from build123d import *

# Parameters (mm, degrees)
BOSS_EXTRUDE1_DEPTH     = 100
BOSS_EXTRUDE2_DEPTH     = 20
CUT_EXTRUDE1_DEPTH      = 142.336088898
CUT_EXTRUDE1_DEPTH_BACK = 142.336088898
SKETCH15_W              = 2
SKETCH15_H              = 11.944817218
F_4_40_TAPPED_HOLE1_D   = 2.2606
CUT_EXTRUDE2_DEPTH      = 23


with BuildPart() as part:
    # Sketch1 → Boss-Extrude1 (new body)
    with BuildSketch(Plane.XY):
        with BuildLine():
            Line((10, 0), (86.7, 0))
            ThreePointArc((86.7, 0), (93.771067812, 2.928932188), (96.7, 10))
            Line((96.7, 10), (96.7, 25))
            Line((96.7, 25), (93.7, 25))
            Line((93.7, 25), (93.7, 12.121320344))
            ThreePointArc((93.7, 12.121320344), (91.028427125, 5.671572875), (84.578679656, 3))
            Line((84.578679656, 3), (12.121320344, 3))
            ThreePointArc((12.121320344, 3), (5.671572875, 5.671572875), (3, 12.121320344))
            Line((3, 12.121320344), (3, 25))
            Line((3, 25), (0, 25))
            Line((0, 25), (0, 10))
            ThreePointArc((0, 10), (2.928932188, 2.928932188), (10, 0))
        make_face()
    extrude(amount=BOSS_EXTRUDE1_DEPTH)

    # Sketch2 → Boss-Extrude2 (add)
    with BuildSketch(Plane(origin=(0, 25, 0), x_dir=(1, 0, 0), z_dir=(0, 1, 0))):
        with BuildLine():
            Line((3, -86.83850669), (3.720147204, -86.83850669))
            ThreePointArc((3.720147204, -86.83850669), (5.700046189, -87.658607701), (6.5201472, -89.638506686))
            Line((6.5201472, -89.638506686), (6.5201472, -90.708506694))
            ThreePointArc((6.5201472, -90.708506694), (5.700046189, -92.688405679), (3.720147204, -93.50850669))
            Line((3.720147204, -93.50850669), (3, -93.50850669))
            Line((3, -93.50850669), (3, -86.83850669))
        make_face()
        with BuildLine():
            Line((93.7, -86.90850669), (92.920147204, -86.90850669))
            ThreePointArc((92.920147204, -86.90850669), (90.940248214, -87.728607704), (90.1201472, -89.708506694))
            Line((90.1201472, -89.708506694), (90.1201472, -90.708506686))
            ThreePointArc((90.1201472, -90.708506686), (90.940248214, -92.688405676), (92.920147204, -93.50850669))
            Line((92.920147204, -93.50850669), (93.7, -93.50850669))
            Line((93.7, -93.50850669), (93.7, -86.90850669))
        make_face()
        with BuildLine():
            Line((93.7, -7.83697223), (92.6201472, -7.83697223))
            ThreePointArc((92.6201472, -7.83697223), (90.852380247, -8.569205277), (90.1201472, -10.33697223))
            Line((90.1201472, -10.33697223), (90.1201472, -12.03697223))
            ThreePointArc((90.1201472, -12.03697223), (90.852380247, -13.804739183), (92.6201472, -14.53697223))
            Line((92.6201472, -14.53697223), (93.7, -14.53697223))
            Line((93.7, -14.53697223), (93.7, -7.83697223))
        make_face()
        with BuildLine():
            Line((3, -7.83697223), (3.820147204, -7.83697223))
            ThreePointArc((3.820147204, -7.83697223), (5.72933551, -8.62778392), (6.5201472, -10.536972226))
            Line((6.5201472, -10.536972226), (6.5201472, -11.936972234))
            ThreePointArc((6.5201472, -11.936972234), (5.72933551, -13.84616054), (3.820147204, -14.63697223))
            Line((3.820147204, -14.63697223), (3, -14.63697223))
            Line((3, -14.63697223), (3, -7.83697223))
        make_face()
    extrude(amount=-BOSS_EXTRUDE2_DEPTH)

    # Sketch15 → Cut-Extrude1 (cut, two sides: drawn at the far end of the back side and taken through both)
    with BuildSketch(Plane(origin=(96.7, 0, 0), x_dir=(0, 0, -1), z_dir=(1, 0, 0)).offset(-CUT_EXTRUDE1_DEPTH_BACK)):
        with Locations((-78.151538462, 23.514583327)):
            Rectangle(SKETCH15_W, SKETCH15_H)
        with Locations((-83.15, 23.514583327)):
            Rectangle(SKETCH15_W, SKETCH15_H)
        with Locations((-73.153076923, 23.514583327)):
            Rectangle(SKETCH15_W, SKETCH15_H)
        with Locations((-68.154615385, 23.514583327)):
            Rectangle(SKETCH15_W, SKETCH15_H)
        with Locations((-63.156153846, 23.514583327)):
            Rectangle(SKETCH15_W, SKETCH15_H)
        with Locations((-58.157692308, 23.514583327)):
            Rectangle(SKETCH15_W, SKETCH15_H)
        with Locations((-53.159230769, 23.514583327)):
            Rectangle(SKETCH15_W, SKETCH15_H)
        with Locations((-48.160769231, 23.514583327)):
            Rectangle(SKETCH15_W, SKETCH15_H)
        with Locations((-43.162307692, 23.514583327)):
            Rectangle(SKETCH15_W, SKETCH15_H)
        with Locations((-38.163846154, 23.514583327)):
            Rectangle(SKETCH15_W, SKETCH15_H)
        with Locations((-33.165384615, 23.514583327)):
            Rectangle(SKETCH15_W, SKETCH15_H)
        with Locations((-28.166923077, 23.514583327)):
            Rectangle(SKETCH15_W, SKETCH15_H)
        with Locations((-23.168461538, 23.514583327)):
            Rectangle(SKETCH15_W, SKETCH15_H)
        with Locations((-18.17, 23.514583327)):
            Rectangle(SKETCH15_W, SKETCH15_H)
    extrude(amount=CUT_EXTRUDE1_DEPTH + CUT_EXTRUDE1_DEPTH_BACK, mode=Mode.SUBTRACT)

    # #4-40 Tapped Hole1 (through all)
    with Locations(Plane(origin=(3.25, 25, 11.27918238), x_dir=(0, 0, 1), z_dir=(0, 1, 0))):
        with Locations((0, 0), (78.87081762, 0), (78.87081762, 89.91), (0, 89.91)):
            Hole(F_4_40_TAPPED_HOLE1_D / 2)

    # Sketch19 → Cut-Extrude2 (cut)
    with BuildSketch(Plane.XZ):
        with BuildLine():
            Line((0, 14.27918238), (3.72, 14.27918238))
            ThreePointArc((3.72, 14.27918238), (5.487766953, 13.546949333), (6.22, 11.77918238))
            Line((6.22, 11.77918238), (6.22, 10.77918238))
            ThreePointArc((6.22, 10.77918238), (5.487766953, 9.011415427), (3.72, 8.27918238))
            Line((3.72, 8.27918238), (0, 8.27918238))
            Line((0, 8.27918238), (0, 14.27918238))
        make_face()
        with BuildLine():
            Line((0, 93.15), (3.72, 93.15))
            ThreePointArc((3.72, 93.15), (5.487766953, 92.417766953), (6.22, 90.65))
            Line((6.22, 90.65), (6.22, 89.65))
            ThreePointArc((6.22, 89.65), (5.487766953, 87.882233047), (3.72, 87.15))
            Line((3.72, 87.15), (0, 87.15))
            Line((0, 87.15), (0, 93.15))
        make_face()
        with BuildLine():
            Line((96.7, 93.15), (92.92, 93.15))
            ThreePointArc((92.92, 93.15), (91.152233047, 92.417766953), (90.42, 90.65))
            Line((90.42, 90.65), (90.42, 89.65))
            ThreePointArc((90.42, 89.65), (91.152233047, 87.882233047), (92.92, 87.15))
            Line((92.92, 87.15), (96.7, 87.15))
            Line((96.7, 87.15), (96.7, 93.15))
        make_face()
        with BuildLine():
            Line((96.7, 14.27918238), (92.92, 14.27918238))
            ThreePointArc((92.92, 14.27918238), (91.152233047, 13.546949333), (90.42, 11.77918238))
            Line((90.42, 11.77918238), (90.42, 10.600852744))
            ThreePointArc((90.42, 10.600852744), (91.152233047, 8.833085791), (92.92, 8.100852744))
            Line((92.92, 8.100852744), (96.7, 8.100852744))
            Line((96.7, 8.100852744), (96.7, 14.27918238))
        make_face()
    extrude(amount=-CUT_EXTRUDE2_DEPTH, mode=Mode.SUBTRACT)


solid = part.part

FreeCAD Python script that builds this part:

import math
import FreeCAD as App
import Part
import Sketcher
from FreeCAD import Vector
Q = App.Units.Quantity


def add_polygon(sketch, points):
    """Adds a closed chain of lines whose ends are joined by coincident constraints."""
    first, n = sketch.GeometryCount, len(points)
    for a, b in zip(points, points[1:] + points[:1]):
        sketch.addGeometry(Part.LineSegment(App.Vector(*a, 0), App.Vector(*b, 0)), False)
    for i in range(n):
        sketch.addConstraint(Sketcher.Constraint("Coincident", first + i, 2, first + (i + 1) % n, 1))

doc = App.newDocument("Part")
params = doc.addObject("Spreadsheet::Sheet", "Params")
for row, (alias, value) in enumerate([
    ("sketch1_radius", "10 mm"),
    ("sketch1_width", "3 mm"),
    ("sketch1_height", "15 mm"),
    ("sketch1_width2", "76.7 mm"),
    ("pad1_length", "100 mm"),
    ("sketch2_radius", "2.8 mm"),
    ("sketch2_radius2", "2.5 mm"),
    ("sketch2_radius3", "2.7 mm"),
    ("sketch2_height", "1 mm"),
    ("sketch2_height2", "1.7 mm"),
    ("pad2_length", "20 mm"),
    ("sketch3_height", "2 mm"),
    ("hole_diameter", "2.2606 mm"),
    ("sketch5_radius", "2.5 mm"),
    ("sketch5_height", "6 mm"),
    ("sketch5_width", "3.72 mm"),
    ("sketch5_width2", "3.78 mm"),
    ("pocket2_length", "23 mm"),
], start=1):
    params.set(f"A{row}", alias)
    params.set(f"B{row}", "=" + value)
    params.setAlias(f"B{row}", alias)

body = doc.addObject("PartDesign::Body", "Body")

# Sketch on XY plane
sketch1 = doc.addObject("Sketcher::SketchObject", "Sketch")
body.addObject(sketch1)
sketch1.AttachmentSupport = (doc.XY_Plane, [""])
sketch1.MapMode = "FlatFace"
sketch1.addGeometry([
    Part.LineSegment(Vector(10, 0, 0), Vector(86.7, 0, 0)),  # 0
    Part.ArcOfCircle(Part.Circle(Vector(86.7, 10, 0), Vector(0, 0, 1), 10), math.radians(-90), math.radians(0)),  # 1
    Part.LineSegment(Vector(96.7, 10, 0), Vector(96.7, 25, 0)),  # 2
    Part.LineSegment(Vector(96.7, 25, 0), Vector(93.7, 25, 0)),  # 3
    Part.LineSegment(Vector(93.7, 25, 0), Vector(93.7, 12.1, 0)),  # 4
    Part.ArcOfCircle(Part.Circle(Vector(84.6, 12.1, 0), Vector(0, 0, 1), 9.1), math.radians(-90), math.radians(0)),  # 5
    Part.LineSegment(Vector(84.6, 3, 0), Vector(12.1, 3, 0)),  # 6
    Part.ArcOfCircle(Part.Circle(Vector(12.1, 12.1, 0), Vector(0, 0, 1), 9.1), math.radians(180), math.radians(270)),  # 7
    Part.LineSegment(Vector(3, 12.1, 0), Vector(3, 25, 0)),  # 8
    Part.LineSegment(Vector(3, 25, 0), Vector(0, 25, 0)),  # 9
    Part.LineSegment(Vector(0, 25, 0), Vector(0, 10, 0)),  # 10
    Part.ArcOfCircle(Part.Circle(Vector(10, 10, 0), Vector(0, 0, 1), 10), math.radians(180), math.radians(270)),  # 11
], False)
sketch1.addConstraint([
    Sketcher.Constraint("Tangent", 0, 2, 1, 1),
    Sketcher.Constraint("Tangent", 1, 2, 2, 1),
    Sketcher.Constraint("Coincident", 2, 2, 3, 1),
    Sketcher.Constraint("Coincident", 3, 2, 4, 1),
    Sketcher.Constraint("Tangent", 4, 2, 5, 2),
    Sketcher.Constraint("Tangent", 5, 1, 6, 1),
    Sketcher.Constraint("Tangent", 6, 2, 7, 2),
    Sketcher.Constraint("Tangent", 7, 1, 8, 1),
    Sketcher.Constraint("Coincident", 8, 2, 9, 1),
    Sketcher.Constraint("Coincident", 9, 2, 10, 1),
    Sketcher.Constraint("Tangent", 10, 2, 11, 1),
    Sketcher.Constraint("Tangent", 11, 2, 0, 1),
    Sketcher.Constraint("Horizontal", 0),
    Sketcher.Constraint("Vertical", 2),
    Sketcher.Constraint("Horizontal", 3),
    Sketcher.Constraint("Vertical", 4),
    Sketcher.Constraint("Horizontal", 6),
    Sketcher.Constraint("Vertical", 8),
    Sketcher.Constraint("Horizontal", 9),
    Sketcher.Constraint("Vertical", 10),
    Sketcher.Constraint("Equal", 5, 7),
    Sketcher.Constraint("Equal", 1, 11),
    Sketcher.Constraint("PointOnObject", 0, 2, -1),
    Sketcher.Constraint("PointOnObject", 9, 2, -2),
    Sketcher.Constraint("Horizontal", 3, 2, 8, 2),
    Sketcher.Constraint("Equal", 3, 9),
    Sketcher.Constraint("Radius", 1, Q("10 mm")),
    Sketcher.Constraint("DistanceX", 3, 2, 3, 1, Q("3 mm")),
    Sketcher.Constraint("DistanceY", 2, 1, 2, 2, Q("15 mm")),
    Sketcher.Constraint("DistanceX", 0, 1, 0, 2, Q("76.7 mm")),
    Sketcher.Constraint("DistanceY", -1, 1, 5, 1, Q("3 mm")),
    Sketcher.Constraint("Radius", 5, Q("9.12132 mm")),
])
sketch1.setExpression("Constraints[26]", "Params.sketch1_radius")
sketch1.setExpression("Constraints[27]", "Params.sketch1_width")
sketch1.setExpression("Constraints[28]", "Params.sketch1_height")
sketch1.setExpression("Constraints[29]", "Params.sketch1_width2")
pad1 = doc.addObject("PartDesign::Pad", "Pad")
body.addObject(pad1)
pad1.Profile = sketch1
pad1.setExpression("Length", "Params.pad1_length")

# Sketch on XZ plane
sketch2 = doc.addObject("Sketcher::SketchObject", "Sketch001")
body.addObject(sketch2)
sketch2.AttachmentSupport = (doc.XZ_Plane, [""])
sketch2.MapMode = "FlatFace"
sketch2.AttachmentOffset = App.Placement(Vector(0, 0, -25), App.Rotation())
sketch2.addGeometry([
    Part.LineSegment(Vector(3.7, 86.8, 0), Vector(3, 86.8, 0)),  # 0
    Part.LineSegment(Vector(3, 86.8, 0), Vector(3, 93.5, 0)),  # 1
    Part.LineSegment(Vector(3, 93.5, 0), Vector(3.7, 93.5, 0)),  # 2
    Part.ArcOfCircle(Part.Circle(Vector(3.7, 90.7, 0), Vector(0, 0, 1), 2.8), math.radians(0), math.radians(90)),  # 3
    Part.LineSegment(Vector(6.5, 90.7, 0), Vector(6.5, 89.6, 0)),  # 4
    Part.ArcOfCircle(Part.Circle(Vector(3.7, 89.6, 0), Vector(0, 0, 1), 2.8), math.radians(-90), math.radians(0)),  # 5
    Part.LineSegment(Vector(93.7, 86.9, 0), Vector(92.9, 86.9, 0)),  # 6
    Part.ArcOfCircle(Part.Circle(Vector(92.9, 89.7, 0), Vector(0, 0, 1), 2.8), math.radians(-180), math.radians(-90)),  # 7
    Part.LineSegment(Vector(90.1, 89.7, 0), Vector(90.1, 90.7, 0)),  # 8
    Part.ArcOfCircle(Part.Circle(Vector(92.9, 90.7, 0), Vector(0, 0, 1), 2.8), math.radians(90), math.radians(180)),  # 9
    Part.LineSegment(Vector(92.9, 93.5, 0), Vector(93.7, 93.5, 0)),  # 10
    Part.LineSegment(Vector(93.7, 93.5, 0), Vector(93.7, 86.9, 0)),  # 11
    Part.LineSegment(Vector(93.7, 7.8, 0), Vector(92.6, 7.8, 0)),  # 12
    Part.ArcOfCircle(Part.Circle(Vector(92.6, 10.3, 0), Vector(0, 0, 1), 2.5), math.radians(180), math.radians(270)),  # 13
    Part.LineSegment(Vector(90.1, 10.3, 0), Vector(90.1, 12, 0)),  # 14
    Part.ArcOfCircle(Part.Circle(Vector(92.6, 12, 0), Vector(0, 0, 1), 2.5), math.radians(90), math.radians(180)),  # 15
    Part.LineSegment(Vector(92.6, 14.5, 0), Vector(93.7, 14.5, 0)),  # 16
    Part.LineSegment(Vector(93.7, 14.5, 0), Vector(93.7, 7.8, 0)),  # 17
    Part.LineSegment(Vector(3.8, 7.8, 0), Vector(3, 7.8, 0)),  # 18
    Part.LineSegment(Vector(3, 7.8, 0), Vector(3, 14.6, 0)),  # 19
    Part.LineSegment(Vector(3, 14.6, 0), Vector(3.8, 14.6, 0)),  # 20
    Part.ArcOfCircle(Part.Circle(Vector(3.8, 11.9, 0), Vector(0, 0, 1), 2.7), math.radians(0), math.radians(90)),  # 21
    Part.LineSegment(Vector(6.5, 11.9, 0), Vector(6.5, 10.5, 0)),  # 22
    Part.ArcOfCircle(Part.Circle(Vector(3.8, 10.5, 0), Vector(0, 0, 1), 2.7), math.radians(-90), math.radians(0)),  # 23
], False)
sketch2.addConstraint([
    Sketcher.Constraint("Coincident", 0, 2, 1, 1),
    Sketcher.Constraint("Coincident", 1, 2, 2, 1),
    Sketcher.Constraint("Tangent", 2, 2, 3, 2),
    Sketcher.Constraint("Tangent", 3, 1, 4, 1),
    Sketcher.Constraint("Tangent", 4, 2, 5, 2),
    Sketcher.Constraint("Tangent", 5, 1, 0, 1),
    Sketcher.Constraint("Tangent", 6, 2, 7, 2),
    Sketcher.Constraint("Tangent", 7, 1, 8, 1),
    Sketcher.Constraint("Tangent", 8, 2, 9, 2),
    Sketcher.Constraint("Tangent", 9, 1, 10, 1),
    Sketcher.Constraint("Coincident", 10, 2, 11, 1),
    Sketcher.Constraint("Coincident", 11, 2, 6, 1),
    Sketcher.Constraint("Tangent", 12, 2, 13, 2),
    Sketcher.Constraint("Tangent", 13, 1, 14, 1),
    Sketcher.Constraint("Tangent", 14, 2, 15, 2),
    Sketcher.Constraint("Tangent", 15, 1, 16, 1),
    Sketcher.Constraint("Coincident", 16, 2, 17, 1),
    Sketcher.Constraint("Coincident", 17, 2, 12, 1),
    Sketcher.Constraint("Coincident", 18, 2, 19, 1),
    Sketcher.Constraint("Coincident", 19, 2, 20, 1),
    Sketcher.Constraint("Tangent", 20, 2, 21, 2),
    Sketcher.Constraint("Tangent", 21, 1, 22, 1),
    Sketcher.Constraint("Tangent", 22, 2, 23, 2),
    Sketcher.Constraint("Tangent", 23, 1, 18, 1),
    Sketcher.Constraint("Horizontal", 0),
    Sketcher.Constraint("Vertical", 1),
    Sketcher.Constraint("Horizontal", 2),
    Sketcher.Constraint("Vertical", 4),
    Sketcher.Constraint("Horizontal", 6),
    Sketcher.Constraint("Vertical", 8),
    Sketcher.Constraint("Horizontal", 10),
    Sketcher.Constraint("Vertical", 11),
    Sketcher.Constraint("Horizontal", 12),
    Sketcher.Constraint("Vertical", 14),
    Sketcher.Constraint("Horizontal", 16),
    Sketcher.Constraint("Vertical", 17),
    Sketcher.Constraint("Horizontal", 18),
    Sketcher.Constraint("Vertical", 19),
    Sketcher.Constraint("Horizontal", 20),
    Sketcher.Constraint("Vertical", 22),
    Sketcher.Constraint("Equal", 3, 5),
    Sketcher.Constraint("Equal", 5, 7),
    Sketcher.Constraint("Equal", 7, 9),
    Sketcher.Constraint("Equal", 13, 15),
    Sketcher.Constraint("Equal", 21, 23),
    Sketcher.Constraint("Horizontal", 3, 3, 9, 3),
    Sketcher.Constraint("Horizontal", 17, 2, 18, 2),
    Sketcher.Constraint("Vertical", 8, 2, 13, 1),
    Sketcher.Constraint("Vertical", 11, 2, 16, 2),
    Sketcher.Constraint("Vertical", 1, 2, 18, 2),
    Sketcher.Constraint("Vertical", 4, 2, 21, 1),
    Sketcher.Constraint("Radius", 3, Q("2.8 mm")),
    Sketcher.Constraint("Radius", 13, Q("2.5 mm")),
    Sketcher.Constraint("Radius", 21, Q("2.7 mm")),
    Sketcher.Constraint("DistanceY", 8, 1, 8, 2, Q("1 mm")),
    Sketcher.Constraint("DistanceY", 14, 1, 14, 2, Q("1.7 mm")),
    Sketcher.Constraint("DistanceY", 19, 1, 19, 2, Q("6.8 mm")),
    Sketcher.Constraint("DistanceX", -1, 1, 0, 2, Q("3 mm")),
    Sketcher.Constraint("DistanceY", 1, 1, 1, 2, Q("6.67 mm")),
    Sketcher.Constraint("DistanceX", -1, 1, 10, 2, Q("93.7 mm")),
    Sketcher.Constraint("DistanceX", 5, 3, 7, 3, Q("89.2 mm")),
    Sketcher.Constraint("DistanceX", 0, 2, 0, 1, Q("0.720147 mm")),
    Sketcher.Constraint("DistanceY", -1, 1, 3, 3, Q("90.708507 mm")),
    Sketcher.Constraint("DistanceY", -1, 1, 13, 3, Q("10.336972 mm")),
])
sketch2.setExpression("Constraints[51]", "Params.sketch2_radius")
sketch2.setExpression("Constraints[52]", "Params.sketch2_radius2")
sketch2.setExpression("Constraints[53]", "Params.sketch2_radius3")
sketch2.setExpression("Constraints[54]", "Params.sketch2_height")
sketch2.setExpression("Constraints[55]", "Params.sketch2_height2")
pad2 = doc.addObject("PartDesign::Pad", "Pad001")
body.addObject(pad2)
pad2.Profile = sketch2
pad2.setExpression("Length", "Params.pad2_length")

# Sketch on YZ plane
sketch3 = doc.addObject("Sketcher::SketchObject", "Sketch002")
body.addObject(sketch3)
sketch3.AttachmentSupport = (doc.YZ_Plane, [""])
sketch3.MapMode = "FlatFace"
sketch3.AttachmentOffset = App.Placement(Vector(0, 0, 96.7), App.Rotation())
add_polygon(sketch3, [(29.5, 79.2), (17.5, 79.2), (17.5, 77.2), (29.5, 77.2)])  # lines 0-3
add_polygon(sketch3, [(29.5, 84.2), (17.5, 84.2), (17.5, 82.2), (29.5, 82.2)])  # lines 4-7
add_polygon(sketch3, [(29.5, 74.2), (17.5, 74.2), (17.5, 72.2), (29.5, 72.2)])  # lines 8-11
add_polygon(sketch3, [(29.5, 69.2), (17.5, 69.2), (17.5, 67.2), (29.5, 67.2)])  # lines 12-15
add_polygon(sketch3, [(29.5, 64.2), (17.5, 64.2), (17.5, 62.2), (29.5, 62.2)])  # lines 16-19
add_polygon(sketch3, [(29.5, 59.2), (17.5, 59.2), (17.5, 57.2), (29.5, 57.2)])  # lines 20-23
add_polygon(sketch3, [(29.5, 54.2), (17.5, 54.2), (17.5, 52.2), (29.5, 52.2)])  # lines 24-27
add_polygon(sketch3, [(29.5, 49.2), (17.5, 49.2), (17.5, 47.2), (29.5, 47.2)])  # lines 28-31
add_polygon(sketch3, [(29.5, 44.2), (17.5, 44.2), (17.5, 42.2), (29.5, 42.2)])  # lines 32-35
add_polygon(sketch3, [(29.5, 39.2), (17.5, 39.2), (17.5, 37.2), (29.5, 37.2)])  # lines 36-39
add_polygon(sketch3, [(29.5, 34.2), (17.5, 34.2), (17.5, 32.2), (29.5, 32.2)])  # lines 40-43
add_polygon(sketch3, [(29.5, 29.2), (17.5, 29.2), (17.5, 27.2), (29.5, 27.2)])  # lines 44-47
add_polygon(sketch3, [(29.5, 24.2), (17.5, 24.2), (17.5, 22.2), (29.5, 22.2)])  # lines 48-51
add_polygon(sketch3, [(29.5, 19.2), (17.5, 19.2), (17.5, 17.2), (29.5, 17.2)])  # lines 52-55
sketch3.addConstraint([
    Sketcher.Constraint("Horizontal", 0),
    Sketcher.Constraint("Vertical", 1),
    Sketcher.Constraint("Horizontal", 2),
    Sketcher.Constraint("Vertical", 3),
    Sketcher.Constraint("Horizontal", 4),
    Sketcher.Constraint("Vertical", 5),
    Sketcher.Constraint("Horizontal", 6),
    Sketcher.Constraint("Vertical", 7),
    Sketcher.Constraint("Horizontal", 8),
    Sketcher.Constraint("Vertical", 9),
    Sketcher.Constraint("Horizontal", 10),
    Sketcher.Constraint("Vertical", 11),
    Sketcher.Constraint("Horizontal", 12),
    Sketcher.Constraint("Vertical", 13),
    Sketcher.Constraint("Horizontal", 14),
    Sketcher.Constraint("Vertical", 15),
    Sketcher.Constraint("Horizontal", 16),
    Sketcher.Constraint("Vertical", 17),
    Sketcher.Constraint("Horizontal", 18),
    Sketcher.Constraint("Vertical", 19),
    Sketcher.Constraint("Horizontal", 20),
    Sketcher.Constraint("Vertical", 21),
    Sketcher.Constraint("Horizontal", 22),
    Sketcher.Constraint("Vertical", 23),
    Sketcher.Constraint("Horizontal", 24),
    Sketcher.Constraint("Vertical", 25),
    Sketcher.Constraint("Horizontal", 26),
    Sketcher.Constraint("Vertical", 27),
    Sketcher.Constraint("Horizontal", 28),
    Sketcher.Constraint("Vertical", 29),
    Sketcher.Constraint("Horizontal", 30),
    Sketcher.Constraint("Vertical", 31),
    Sketcher.Constraint("Horizontal", 32),
    Sketcher.Constraint("Vertical", 33),
    Sketcher.Constraint("Horizontal", 34),
    Sketcher.Constraint("Vertical", 35),
    Sketcher.Constraint("Horizontal", 36),
    Sketcher.Constraint("Vertical", 37),
    Sketcher.Constraint("Horizontal", 38),
    Sketcher.Constraint("Vertical", 39),
    Sketcher.Constraint("Horizontal", 40),
    Sketcher.Constraint("Vertical", 41),
    Sketcher.Constraint("Horizontal", 42),
    Sketcher.Constraint("Vertical", 43),
    Sketcher.Constraint("Horizontal", 44),
    Sketcher.Constraint("Vertical", 45),
    Sketcher.Constraint("Horizontal", 46),
    Sketcher.Constraint("Vertical", 47),
    Sketcher.Constraint("Horizontal", 48),
    Sketcher.Constraint("Vertical", 49),
    Sketcher.Constraint("Horizontal", 50),
    Sketcher.Constraint("Vertical", 51),
    Sketcher.Constraint("Horizontal", 52),
    Sketcher.Constraint("Vertical", 53),
    Sketcher.Constraint("Horizontal", 54),
    Sketcher.Constraint("Vertical", 55),
    Sketcher.Constraint("Vertical", 1, 2, 4, 2),
    Sketcher.Constraint("Vertical", 3, 2, 6, 2),
    Sketcher.Constraint("Vertical", 5, 2, 8, 2),
    Sketcher.Constraint("Vertical", 7, 2, 10, 2),
    Sketcher.Constraint("Vertical", 9, 2, 12, 2),
    Sketcher.Constraint("Vertical", 11, 2, 14, 2),
    Sketcher.Constraint("Vertical", 13, 2, 16, 2),
    Sketcher.Constraint("Vertical", 15, 2, 18, 2),
    Sketcher.Constraint("Vertical", 17, 2, 20, 2),
    Sketcher.Constraint("Vertical", 19, 2, 22, 2),
    Sketcher.Constraint("Vertical", 21, 2, 24, 2),
    Sketcher.Constraint("Vertical", 23, 2, 26, 2),
    Sketcher.Constraint("Vertical", 25, 2, 28, 2),
    Sketcher.Constraint("Vertical", 27, 2, 30, 2),
    Sketcher.Constraint("Vertical", 29, 2, 32, 2),
    Sketcher.Constraint("Vertical", 31, 2, 34, 2),
    Sketcher.Constraint("Vertical", 33, 2, 36, 2),
    Sketcher.Constraint("Vertical", 35, 2, 38, 2),
    Sketcher.Constraint("Vertical", 37, 2, 40, 2),
    Sketcher.Constraint("Vertical", 39, 2, 42, 2),
    Sketcher.Constraint("Vertical", 41, 2, 44, 2),
    Sketcher.Constraint("Vertical", 43, 2, 46, 2),
    Sketcher.Constraint("Vertical", 45, 2, 48, 2),
    Sketcher.Constraint("Vertical", 47, 2, 50, 2),
    Sketcher.Constraint("Vertical", 49, 2, 52, 2),
    Sketcher.Constraint("Vertical", 51, 2, 54, 2),
    Sketcher.Constraint("Equal", 3, 5),
    Sketcher.Constraint("Equal", 7, 9),
    Sketcher.Constraint("Equal", 11, 13),
    Sketcher.Constraint("Equal", 15, 17),
    Sketcher.Constraint("Equal", 19, 21),
    Sketcher.Constraint("Equal", 23, 25),
    Sketcher.Constraint("Equal", 27, 29),
    Sketcher.Constraint("Equal", 31, 33),
    Sketcher.Constraint("Equal", 35, 37),
    Sketcher.Constraint("Equal", 39, 41),
    Sketcher.Constraint("Equal", 43, 45),
    Sketcher.Constraint("Equal", 47, 49),
    Sketcher.Constraint("Equal", 51, 53),
    Sketcher.Constraint("DistanceY", 1, 2, 1, 1, Q("2 mm")),
    Sketcher.Constraint("DistanceY", -1, 1, 4, 2, Q("84.15 mm")),
    Sketcher.Constraint("DistanceY", -1, 1, 52, 2, Q("19.17 mm")),
    Sketcher.Constraint("DistanceX", 0, 2, 0, 1, Q("11.944817 mm")),
    Sketcher.Constraint("DistanceY", -1, 1, 0, 2, Q("79.151538 mm")),
    Sketcher.Constraint("DistanceX", -1, 1, 2, 2, Q("29.486992 mm")),
    Sketcher.Constraint("DistanceY", -1, 1, 24, 2, Q("54.159231 mm")),
    Sketcher.Constraint("DistanceY", -1, 1, 28, 2, Q("49.160769 mm")),
    Sketcher.Constraint("DistanceY", -1, 1, 48, 2, Q("24.168462 mm")),
    Sketcher.Constraint("DistanceY", 8, 2, 1, 2, Q("2.998462 mm")),
    Sketcher.Constraint("DistanceY", 12, 2, 9, 2, Q("2.998462 mm")),
    Sketcher.Constraint("DistanceY", 16, 2, 13, 2, Q("2.998462 mm")),
    Sketcher.Constraint("DistanceY", 20, 2, 17, 2, Q("2.998462 mm")),
    Sketcher.Constraint("DistanceY", 32, 2, 29, 2, Q("2.998462 mm")),
    Sketcher.Constraint("DistanceY", 36, 2, 33, 2, Q("2.998462 mm")),
    Sketcher.Constraint("DistanceY", 40, 2, 37, 2, Q("2.998462 mm")),
    Sketcher.Constraint("DistanceY", 44, 2, 41, 2, Q("2.998462 mm")),
])
sketch3.setExpression("Constraints[151]", "Params.sketch3_height")
pocket1 = doc.addObject("PartDesign::Pocket", "Pocket")
body.addObject(pocket1)
pocket1.Profile = sketch3
pocket1.Type = "ThroughAll"
pocket1.Midplane = True

# Sketch on XZ plane
sketch4 = doc.addObject("Sketcher::SketchObject", "Sketch003")
body.addObject(sketch4)
sketch4.AttachmentSupport = (doc.XZ_Plane, [""])
sketch4.MapMode = "FlatFace"
sketch4.AttachmentOffset = App.Placement(Vector(0, 0, -25), App.Rotation())
sketch4.addGeometry([
    Part.Circle(Vector(3.2, 11.3, 0), Vector(0, 0, 1), 1.1),
    Part.Circle(Vector(3.2, 90.2, 0), Vector(0, 0, 1), 1.1),
    Part.Circle(Vector(93.2, 90.2, 0), Vector(0, 0, 1), 1.1),
    Part.Circle(Vector(93.2, 11.3, 0), Vector(0, 0, 1), 1.1),
], False)
sketch4.addConstraint([
    Sketcher.Constraint("Equal", 0, 1),
    Sketcher.Constraint("Equal", 1, 2),
    Sketcher.Constraint("Equal", 2, 3),
    Sketcher.Constraint("Horizontal", 1, 3, 2, 3),
    Sketcher.Constraint("Horizontal", 0, 3, 3, 3),
    Sketcher.Constraint("Vertical", 0, 3, 1, 3),
    Sketcher.Constraint("Vertical", 2, 3, 3, 3),
    Sketcher.Constraint("Diameter", 0, Q("2.2606 mm")),
    Sketcher.Constraint("DistanceX", -1, 1, 0, 3, Q("3.25 mm")),
    Sketcher.Constraint("DistanceY", -1, 1, 1, 3, Q("90.15 mm")),
    Sketcher.Constraint("DistanceX", -1, 1, 2, 3, Q("93.16 mm")),
    Sketcher.Constraint("DistanceY", -1, 1, 0, 3, Q("11.279182 mm")),
])
doc.recompute()
hole = doc.addObject("PartDesign::Hole", "Hole")
body.addObject(hole)
hole.Profile = sketch4
hole.ThreadType = "None"
hole.setExpression("Diameter", "Params.hole_diameter")
hole.DepthType = "ThroughAll"
hole.Reversed = True

# Sketch on XZ plane
sketch5 = doc.addObject("Sketcher::SketchObject", "Sketch004")
body.addObject(sketch5)
sketch5.AttachmentSupport = (doc.XZ_Plane, [""])
sketch5.MapMode = "FlatFace"
sketch5.addGeometry([
    Part.LineSegment(Vector(3.7, 14.3, 0), Vector(0, 14.3, 0)),  # 0
    Part.LineSegment(Vector(0, 14.3, 0), Vector(0, 8.3, 0)),  # 1
    Part.LineSegment(Vector(0, 8.3, 0), Vector(3.7, 8.3, 0)),  # 2
    Part.ArcOfCircle(Part.Circle(Vector(3.7, 10.8, 0), Vector(0, 0, 1), 2.5), math.radians(-90), math.radians(0)),  # 3
    Part.LineSegment(Vector(6.2, 10.8, 0), Vector(6.2, 11.8, 0)),  # 4
    Part.ArcOfCircle(Part.Circle(Vector(3.7, 11.8, 0), Vector(0, 0, 1), 2.5), math.radians(0), math.radians(90)),  # 5
    Part.LineSegment(Vector(3.7, 93.2, 0), Vector(0, 93.2, 0)),  # 6
    Part.LineSegment(Vector(0, 93.2, 0), Vector(0, 87.2, 0)),  # 7
    Part.LineSegment(Vector(0, 87.2, 0), Vector(3.7, 87.2, 0)),  # 8
    Part.ArcOfCircle(Part.Circle(Vector(3.7, 89.7, 0), Vector(0, 0, 1), 2.5), math.radians(-90), math.radians(0)),  # 9
    Part.LineSegment(Vector(6.2, 89.7, 0), Vector(6.2, 90.7, 0)),  # 10
    Part.ArcOfCircle(Part.Circle(Vector(3.7, 90.7, 0), Vector(0, 0, 1), 2.5), math.radians(0), math.radians(90)),  # 11
    Part.LineSegment(Vector(96.7, 93.2, 0), Vector(92.9, 93.2, 0)),  # 12
    Part.ArcOfCircle(Part.Circle(Vector(92.9, 90.7, 0), Vector(0, 0, 1), 2.5), math.radians(90), math.radians(180)),  # 13
    Part.LineSegment(Vector(90.4, 90.7, 0), Vector(90.4, 89.7, 0)),  # 14
    Part.ArcOfCircle(Part.Circle(Vector(92.9, 89.7, 0), Vector(0, 0, 1), 2.5), math.radians(180), math.radians(270)),  # 15
    Part.LineSegment(Vector(92.9, 87.2, 0), Vector(96.7, 87.2, 0)),  # 16
    Part.LineSegment(Vector(96.7, 87.2, 0), Vector(96.7, 93.2, 0)),  # 17
    Part.LineSegment(Vector(96.7, 14.3, 0), Vector(92.9, 14.3, 0)),  # 18
    Part.ArcOfCircle(Part.Circle(Vector(92.9, 11.8, 0), Vector(0, 0, 1), 2.5), math.radians(90), math.radians(180)),  # 19
    Part.LineSegment(Vector(90.4, 11.8, 0), Vector(90.4, 10.6, 0)),  # 20
    Part.ArcOfCircle(Part.Circle(Vector(92.9, 10.6, 0), Vector(0, 0, 1), 2.5), math.radians(180), math.radians(270)),  # 21
    Part.LineSegment(Vector(92.9, 8.1, 0), Vector(96.7, 8.1, 0)),  # 22
    Part.LineSegment(Vector(96.7, 8.1, 0), Vector(96.7, 14.3, 0)),  # 23
], False)
sketch5.addConstraint([
    Sketcher.Constraint("Coincident", 0, 2, 1, 1),
    Sketcher.Constraint("Coincident", 1, 2, 2, 1),
    Sketcher.Constraint("Tangent", 2, 2, 3, 1),
    Sketcher.Constraint("Tangent", 3, 2, 4, 1),
    Sketcher.Constraint("Tangent", 4, 2, 5, 1),
    Sketcher.Constraint("Tangent", 5, 2, 0, 1),
    Sketcher.Constraint("Coincident", 6, 2, 7, 1),
    Sketcher.Constraint("Coincident", 7, 2, 8, 1),
    Sketcher.Constraint("Tangent", 8, 2, 9, 1),
    Sketcher.Constraint("Tangent", 9, 2, 10, 1),
    Sketcher.Constraint("Tangent", 10, 2, 11, 1),
    Sketcher.Constraint("Tangent", 11, 2, 6, 1),
    Sketcher.Constraint("Tangent", 12, 2, 13, 1),
    Sketcher.Constraint("Tangent", 13, 2, 14, 1),
    Sketcher.Constraint("Tangent", 14, 2, 15, 1),
    Sketcher.Constraint("Tangent", 15, 2, 16, 1),
    Sketcher.Constraint("Coincident", 16, 2, 17, 1),
    Sketcher.Constraint("Coincident", 17, 2, 12, 1),
    Sketcher.Constraint("Tangent", 18, 2, 19, 1),
    Sketcher.Constraint("Tangent", 19, 2, 20, 1),
    Sketcher.Constraint("Tangent", 20, 2, 21, 1),
    Sketcher.Constraint("Tangent", 21, 2, 22, 1),
    Sketcher.Constraint("Coincident", 22, 2, 23, 1),
    Sketcher.Constraint("Coincident", 23, 2, 18, 1),
    Sketcher.Constraint("Horizontal", 0),
    Sketcher.Constraint("Vertical", 1),
    Sketcher.Constraint("Horizontal", 2),
    Sketcher.Constraint("Vertical", 4),
    Sketcher.Constraint("Horizontal", 6),
    Sketcher.Constraint("Vertical", 7),
    Sketcher.Constraint("Horizontal", 8),
    Sketcher.Constraint("Vertical", 10),
    Sketcher.Constraint("Horizontal", 12),
    Sketcher.Constraint("Vertical", 14),
    Sketcher.Constraint("Horizontal", 16),
    Sketcher.Constraint("Vertical", 17),
    Sketcher.Constraint("Horizontal", 18),
    Sketcher.Constraint("Vertical", 20),
    Sketcher.Constraint("Horizontal", 22),
    Sketcher.Constraint("Vertical", 23),
    Sketcher.Constraint("Equal", 3, 5),
    Sketcher.Constraint("Equal", 5, 9),
    Sketcher.Constraint("Equal", 9, 11),
    Sketcher.Constraint("Equal", 11, 13),
    Sketcher.Constraint("Equal", 13, 15),
    Sketcher.Constraint("Equal", 15, 19),
    Sketcher.Constraint("Equal", 19, 21),
    Sketcher.Constraint("PointOnObject", 0, 2, -2),
    Sketcher.Constraint("PointOnObject", 6, 2, -2),
    Sketcher.Constraint("Horizontal", 11, 3, 13, 3),
    Sketcher.Constraint("Horizontal", 9, 3, 15, 3),
    Sketcher.Constraint("Horizontal", 5, 3, 19, 3),
    Sketcher.Constraint("Vertical", 5, 3, 9, 3),
    Sketcher.Constraint("Vertical", 15, 3, 19, 3),
    Sketcher.Constraint("Vertical", 17, 2, 22, 2),
    Sketcher.Constraint("Equal", 1, 7),
    Sketcher.Constraint("Radius", 3, Q("2.5 mm")),
    Sketcher.Constraint("DistanceY", 1, 2, 1, 1, Q("6 mm")),
    Sketcher.Constraint("DistanceX", 0, 2, 0, 1, Q("3.72 mm")),
    Sketcher.Constraint("DistanceX", 12, 2, 12, 1, Q("3.78 mm")),
    Sketcher.Constraint("DistanceX", -1, 1, 16, 2, Q("96.7 mm")),
    Sketcher.Constraint("DistanceY", -1, 1, 9, 3, Q("89.65 mm")),
    Sketcher.Constraint("DistanceY", 20, 2, 20, 1, Q("1.17833 mm")),
    Sketcher.Constraint("DistanceY", -1, 1, 3, 3, Q("10.779182 mm")),
])
sketch5.setExpression("Constraints[56]", "Params.sketch5_radius")
sketch5.setExpression("Constraints[57]", "Params.sketch5_height")
sketch5.setExpression("Constraints[58]", "Params.sketch5_width")
sketch5.setExpression("Constraints[59]", "Params.sketch5_width2")
pocket2 = doc.addObject("PartDesign::Pocket", "Pocket001")
body.addObject(pocket2)
pocket2.Profile = sketch5
pocket2.setExpression("Length", "Params.pocket2_length")

doc.recompute()
